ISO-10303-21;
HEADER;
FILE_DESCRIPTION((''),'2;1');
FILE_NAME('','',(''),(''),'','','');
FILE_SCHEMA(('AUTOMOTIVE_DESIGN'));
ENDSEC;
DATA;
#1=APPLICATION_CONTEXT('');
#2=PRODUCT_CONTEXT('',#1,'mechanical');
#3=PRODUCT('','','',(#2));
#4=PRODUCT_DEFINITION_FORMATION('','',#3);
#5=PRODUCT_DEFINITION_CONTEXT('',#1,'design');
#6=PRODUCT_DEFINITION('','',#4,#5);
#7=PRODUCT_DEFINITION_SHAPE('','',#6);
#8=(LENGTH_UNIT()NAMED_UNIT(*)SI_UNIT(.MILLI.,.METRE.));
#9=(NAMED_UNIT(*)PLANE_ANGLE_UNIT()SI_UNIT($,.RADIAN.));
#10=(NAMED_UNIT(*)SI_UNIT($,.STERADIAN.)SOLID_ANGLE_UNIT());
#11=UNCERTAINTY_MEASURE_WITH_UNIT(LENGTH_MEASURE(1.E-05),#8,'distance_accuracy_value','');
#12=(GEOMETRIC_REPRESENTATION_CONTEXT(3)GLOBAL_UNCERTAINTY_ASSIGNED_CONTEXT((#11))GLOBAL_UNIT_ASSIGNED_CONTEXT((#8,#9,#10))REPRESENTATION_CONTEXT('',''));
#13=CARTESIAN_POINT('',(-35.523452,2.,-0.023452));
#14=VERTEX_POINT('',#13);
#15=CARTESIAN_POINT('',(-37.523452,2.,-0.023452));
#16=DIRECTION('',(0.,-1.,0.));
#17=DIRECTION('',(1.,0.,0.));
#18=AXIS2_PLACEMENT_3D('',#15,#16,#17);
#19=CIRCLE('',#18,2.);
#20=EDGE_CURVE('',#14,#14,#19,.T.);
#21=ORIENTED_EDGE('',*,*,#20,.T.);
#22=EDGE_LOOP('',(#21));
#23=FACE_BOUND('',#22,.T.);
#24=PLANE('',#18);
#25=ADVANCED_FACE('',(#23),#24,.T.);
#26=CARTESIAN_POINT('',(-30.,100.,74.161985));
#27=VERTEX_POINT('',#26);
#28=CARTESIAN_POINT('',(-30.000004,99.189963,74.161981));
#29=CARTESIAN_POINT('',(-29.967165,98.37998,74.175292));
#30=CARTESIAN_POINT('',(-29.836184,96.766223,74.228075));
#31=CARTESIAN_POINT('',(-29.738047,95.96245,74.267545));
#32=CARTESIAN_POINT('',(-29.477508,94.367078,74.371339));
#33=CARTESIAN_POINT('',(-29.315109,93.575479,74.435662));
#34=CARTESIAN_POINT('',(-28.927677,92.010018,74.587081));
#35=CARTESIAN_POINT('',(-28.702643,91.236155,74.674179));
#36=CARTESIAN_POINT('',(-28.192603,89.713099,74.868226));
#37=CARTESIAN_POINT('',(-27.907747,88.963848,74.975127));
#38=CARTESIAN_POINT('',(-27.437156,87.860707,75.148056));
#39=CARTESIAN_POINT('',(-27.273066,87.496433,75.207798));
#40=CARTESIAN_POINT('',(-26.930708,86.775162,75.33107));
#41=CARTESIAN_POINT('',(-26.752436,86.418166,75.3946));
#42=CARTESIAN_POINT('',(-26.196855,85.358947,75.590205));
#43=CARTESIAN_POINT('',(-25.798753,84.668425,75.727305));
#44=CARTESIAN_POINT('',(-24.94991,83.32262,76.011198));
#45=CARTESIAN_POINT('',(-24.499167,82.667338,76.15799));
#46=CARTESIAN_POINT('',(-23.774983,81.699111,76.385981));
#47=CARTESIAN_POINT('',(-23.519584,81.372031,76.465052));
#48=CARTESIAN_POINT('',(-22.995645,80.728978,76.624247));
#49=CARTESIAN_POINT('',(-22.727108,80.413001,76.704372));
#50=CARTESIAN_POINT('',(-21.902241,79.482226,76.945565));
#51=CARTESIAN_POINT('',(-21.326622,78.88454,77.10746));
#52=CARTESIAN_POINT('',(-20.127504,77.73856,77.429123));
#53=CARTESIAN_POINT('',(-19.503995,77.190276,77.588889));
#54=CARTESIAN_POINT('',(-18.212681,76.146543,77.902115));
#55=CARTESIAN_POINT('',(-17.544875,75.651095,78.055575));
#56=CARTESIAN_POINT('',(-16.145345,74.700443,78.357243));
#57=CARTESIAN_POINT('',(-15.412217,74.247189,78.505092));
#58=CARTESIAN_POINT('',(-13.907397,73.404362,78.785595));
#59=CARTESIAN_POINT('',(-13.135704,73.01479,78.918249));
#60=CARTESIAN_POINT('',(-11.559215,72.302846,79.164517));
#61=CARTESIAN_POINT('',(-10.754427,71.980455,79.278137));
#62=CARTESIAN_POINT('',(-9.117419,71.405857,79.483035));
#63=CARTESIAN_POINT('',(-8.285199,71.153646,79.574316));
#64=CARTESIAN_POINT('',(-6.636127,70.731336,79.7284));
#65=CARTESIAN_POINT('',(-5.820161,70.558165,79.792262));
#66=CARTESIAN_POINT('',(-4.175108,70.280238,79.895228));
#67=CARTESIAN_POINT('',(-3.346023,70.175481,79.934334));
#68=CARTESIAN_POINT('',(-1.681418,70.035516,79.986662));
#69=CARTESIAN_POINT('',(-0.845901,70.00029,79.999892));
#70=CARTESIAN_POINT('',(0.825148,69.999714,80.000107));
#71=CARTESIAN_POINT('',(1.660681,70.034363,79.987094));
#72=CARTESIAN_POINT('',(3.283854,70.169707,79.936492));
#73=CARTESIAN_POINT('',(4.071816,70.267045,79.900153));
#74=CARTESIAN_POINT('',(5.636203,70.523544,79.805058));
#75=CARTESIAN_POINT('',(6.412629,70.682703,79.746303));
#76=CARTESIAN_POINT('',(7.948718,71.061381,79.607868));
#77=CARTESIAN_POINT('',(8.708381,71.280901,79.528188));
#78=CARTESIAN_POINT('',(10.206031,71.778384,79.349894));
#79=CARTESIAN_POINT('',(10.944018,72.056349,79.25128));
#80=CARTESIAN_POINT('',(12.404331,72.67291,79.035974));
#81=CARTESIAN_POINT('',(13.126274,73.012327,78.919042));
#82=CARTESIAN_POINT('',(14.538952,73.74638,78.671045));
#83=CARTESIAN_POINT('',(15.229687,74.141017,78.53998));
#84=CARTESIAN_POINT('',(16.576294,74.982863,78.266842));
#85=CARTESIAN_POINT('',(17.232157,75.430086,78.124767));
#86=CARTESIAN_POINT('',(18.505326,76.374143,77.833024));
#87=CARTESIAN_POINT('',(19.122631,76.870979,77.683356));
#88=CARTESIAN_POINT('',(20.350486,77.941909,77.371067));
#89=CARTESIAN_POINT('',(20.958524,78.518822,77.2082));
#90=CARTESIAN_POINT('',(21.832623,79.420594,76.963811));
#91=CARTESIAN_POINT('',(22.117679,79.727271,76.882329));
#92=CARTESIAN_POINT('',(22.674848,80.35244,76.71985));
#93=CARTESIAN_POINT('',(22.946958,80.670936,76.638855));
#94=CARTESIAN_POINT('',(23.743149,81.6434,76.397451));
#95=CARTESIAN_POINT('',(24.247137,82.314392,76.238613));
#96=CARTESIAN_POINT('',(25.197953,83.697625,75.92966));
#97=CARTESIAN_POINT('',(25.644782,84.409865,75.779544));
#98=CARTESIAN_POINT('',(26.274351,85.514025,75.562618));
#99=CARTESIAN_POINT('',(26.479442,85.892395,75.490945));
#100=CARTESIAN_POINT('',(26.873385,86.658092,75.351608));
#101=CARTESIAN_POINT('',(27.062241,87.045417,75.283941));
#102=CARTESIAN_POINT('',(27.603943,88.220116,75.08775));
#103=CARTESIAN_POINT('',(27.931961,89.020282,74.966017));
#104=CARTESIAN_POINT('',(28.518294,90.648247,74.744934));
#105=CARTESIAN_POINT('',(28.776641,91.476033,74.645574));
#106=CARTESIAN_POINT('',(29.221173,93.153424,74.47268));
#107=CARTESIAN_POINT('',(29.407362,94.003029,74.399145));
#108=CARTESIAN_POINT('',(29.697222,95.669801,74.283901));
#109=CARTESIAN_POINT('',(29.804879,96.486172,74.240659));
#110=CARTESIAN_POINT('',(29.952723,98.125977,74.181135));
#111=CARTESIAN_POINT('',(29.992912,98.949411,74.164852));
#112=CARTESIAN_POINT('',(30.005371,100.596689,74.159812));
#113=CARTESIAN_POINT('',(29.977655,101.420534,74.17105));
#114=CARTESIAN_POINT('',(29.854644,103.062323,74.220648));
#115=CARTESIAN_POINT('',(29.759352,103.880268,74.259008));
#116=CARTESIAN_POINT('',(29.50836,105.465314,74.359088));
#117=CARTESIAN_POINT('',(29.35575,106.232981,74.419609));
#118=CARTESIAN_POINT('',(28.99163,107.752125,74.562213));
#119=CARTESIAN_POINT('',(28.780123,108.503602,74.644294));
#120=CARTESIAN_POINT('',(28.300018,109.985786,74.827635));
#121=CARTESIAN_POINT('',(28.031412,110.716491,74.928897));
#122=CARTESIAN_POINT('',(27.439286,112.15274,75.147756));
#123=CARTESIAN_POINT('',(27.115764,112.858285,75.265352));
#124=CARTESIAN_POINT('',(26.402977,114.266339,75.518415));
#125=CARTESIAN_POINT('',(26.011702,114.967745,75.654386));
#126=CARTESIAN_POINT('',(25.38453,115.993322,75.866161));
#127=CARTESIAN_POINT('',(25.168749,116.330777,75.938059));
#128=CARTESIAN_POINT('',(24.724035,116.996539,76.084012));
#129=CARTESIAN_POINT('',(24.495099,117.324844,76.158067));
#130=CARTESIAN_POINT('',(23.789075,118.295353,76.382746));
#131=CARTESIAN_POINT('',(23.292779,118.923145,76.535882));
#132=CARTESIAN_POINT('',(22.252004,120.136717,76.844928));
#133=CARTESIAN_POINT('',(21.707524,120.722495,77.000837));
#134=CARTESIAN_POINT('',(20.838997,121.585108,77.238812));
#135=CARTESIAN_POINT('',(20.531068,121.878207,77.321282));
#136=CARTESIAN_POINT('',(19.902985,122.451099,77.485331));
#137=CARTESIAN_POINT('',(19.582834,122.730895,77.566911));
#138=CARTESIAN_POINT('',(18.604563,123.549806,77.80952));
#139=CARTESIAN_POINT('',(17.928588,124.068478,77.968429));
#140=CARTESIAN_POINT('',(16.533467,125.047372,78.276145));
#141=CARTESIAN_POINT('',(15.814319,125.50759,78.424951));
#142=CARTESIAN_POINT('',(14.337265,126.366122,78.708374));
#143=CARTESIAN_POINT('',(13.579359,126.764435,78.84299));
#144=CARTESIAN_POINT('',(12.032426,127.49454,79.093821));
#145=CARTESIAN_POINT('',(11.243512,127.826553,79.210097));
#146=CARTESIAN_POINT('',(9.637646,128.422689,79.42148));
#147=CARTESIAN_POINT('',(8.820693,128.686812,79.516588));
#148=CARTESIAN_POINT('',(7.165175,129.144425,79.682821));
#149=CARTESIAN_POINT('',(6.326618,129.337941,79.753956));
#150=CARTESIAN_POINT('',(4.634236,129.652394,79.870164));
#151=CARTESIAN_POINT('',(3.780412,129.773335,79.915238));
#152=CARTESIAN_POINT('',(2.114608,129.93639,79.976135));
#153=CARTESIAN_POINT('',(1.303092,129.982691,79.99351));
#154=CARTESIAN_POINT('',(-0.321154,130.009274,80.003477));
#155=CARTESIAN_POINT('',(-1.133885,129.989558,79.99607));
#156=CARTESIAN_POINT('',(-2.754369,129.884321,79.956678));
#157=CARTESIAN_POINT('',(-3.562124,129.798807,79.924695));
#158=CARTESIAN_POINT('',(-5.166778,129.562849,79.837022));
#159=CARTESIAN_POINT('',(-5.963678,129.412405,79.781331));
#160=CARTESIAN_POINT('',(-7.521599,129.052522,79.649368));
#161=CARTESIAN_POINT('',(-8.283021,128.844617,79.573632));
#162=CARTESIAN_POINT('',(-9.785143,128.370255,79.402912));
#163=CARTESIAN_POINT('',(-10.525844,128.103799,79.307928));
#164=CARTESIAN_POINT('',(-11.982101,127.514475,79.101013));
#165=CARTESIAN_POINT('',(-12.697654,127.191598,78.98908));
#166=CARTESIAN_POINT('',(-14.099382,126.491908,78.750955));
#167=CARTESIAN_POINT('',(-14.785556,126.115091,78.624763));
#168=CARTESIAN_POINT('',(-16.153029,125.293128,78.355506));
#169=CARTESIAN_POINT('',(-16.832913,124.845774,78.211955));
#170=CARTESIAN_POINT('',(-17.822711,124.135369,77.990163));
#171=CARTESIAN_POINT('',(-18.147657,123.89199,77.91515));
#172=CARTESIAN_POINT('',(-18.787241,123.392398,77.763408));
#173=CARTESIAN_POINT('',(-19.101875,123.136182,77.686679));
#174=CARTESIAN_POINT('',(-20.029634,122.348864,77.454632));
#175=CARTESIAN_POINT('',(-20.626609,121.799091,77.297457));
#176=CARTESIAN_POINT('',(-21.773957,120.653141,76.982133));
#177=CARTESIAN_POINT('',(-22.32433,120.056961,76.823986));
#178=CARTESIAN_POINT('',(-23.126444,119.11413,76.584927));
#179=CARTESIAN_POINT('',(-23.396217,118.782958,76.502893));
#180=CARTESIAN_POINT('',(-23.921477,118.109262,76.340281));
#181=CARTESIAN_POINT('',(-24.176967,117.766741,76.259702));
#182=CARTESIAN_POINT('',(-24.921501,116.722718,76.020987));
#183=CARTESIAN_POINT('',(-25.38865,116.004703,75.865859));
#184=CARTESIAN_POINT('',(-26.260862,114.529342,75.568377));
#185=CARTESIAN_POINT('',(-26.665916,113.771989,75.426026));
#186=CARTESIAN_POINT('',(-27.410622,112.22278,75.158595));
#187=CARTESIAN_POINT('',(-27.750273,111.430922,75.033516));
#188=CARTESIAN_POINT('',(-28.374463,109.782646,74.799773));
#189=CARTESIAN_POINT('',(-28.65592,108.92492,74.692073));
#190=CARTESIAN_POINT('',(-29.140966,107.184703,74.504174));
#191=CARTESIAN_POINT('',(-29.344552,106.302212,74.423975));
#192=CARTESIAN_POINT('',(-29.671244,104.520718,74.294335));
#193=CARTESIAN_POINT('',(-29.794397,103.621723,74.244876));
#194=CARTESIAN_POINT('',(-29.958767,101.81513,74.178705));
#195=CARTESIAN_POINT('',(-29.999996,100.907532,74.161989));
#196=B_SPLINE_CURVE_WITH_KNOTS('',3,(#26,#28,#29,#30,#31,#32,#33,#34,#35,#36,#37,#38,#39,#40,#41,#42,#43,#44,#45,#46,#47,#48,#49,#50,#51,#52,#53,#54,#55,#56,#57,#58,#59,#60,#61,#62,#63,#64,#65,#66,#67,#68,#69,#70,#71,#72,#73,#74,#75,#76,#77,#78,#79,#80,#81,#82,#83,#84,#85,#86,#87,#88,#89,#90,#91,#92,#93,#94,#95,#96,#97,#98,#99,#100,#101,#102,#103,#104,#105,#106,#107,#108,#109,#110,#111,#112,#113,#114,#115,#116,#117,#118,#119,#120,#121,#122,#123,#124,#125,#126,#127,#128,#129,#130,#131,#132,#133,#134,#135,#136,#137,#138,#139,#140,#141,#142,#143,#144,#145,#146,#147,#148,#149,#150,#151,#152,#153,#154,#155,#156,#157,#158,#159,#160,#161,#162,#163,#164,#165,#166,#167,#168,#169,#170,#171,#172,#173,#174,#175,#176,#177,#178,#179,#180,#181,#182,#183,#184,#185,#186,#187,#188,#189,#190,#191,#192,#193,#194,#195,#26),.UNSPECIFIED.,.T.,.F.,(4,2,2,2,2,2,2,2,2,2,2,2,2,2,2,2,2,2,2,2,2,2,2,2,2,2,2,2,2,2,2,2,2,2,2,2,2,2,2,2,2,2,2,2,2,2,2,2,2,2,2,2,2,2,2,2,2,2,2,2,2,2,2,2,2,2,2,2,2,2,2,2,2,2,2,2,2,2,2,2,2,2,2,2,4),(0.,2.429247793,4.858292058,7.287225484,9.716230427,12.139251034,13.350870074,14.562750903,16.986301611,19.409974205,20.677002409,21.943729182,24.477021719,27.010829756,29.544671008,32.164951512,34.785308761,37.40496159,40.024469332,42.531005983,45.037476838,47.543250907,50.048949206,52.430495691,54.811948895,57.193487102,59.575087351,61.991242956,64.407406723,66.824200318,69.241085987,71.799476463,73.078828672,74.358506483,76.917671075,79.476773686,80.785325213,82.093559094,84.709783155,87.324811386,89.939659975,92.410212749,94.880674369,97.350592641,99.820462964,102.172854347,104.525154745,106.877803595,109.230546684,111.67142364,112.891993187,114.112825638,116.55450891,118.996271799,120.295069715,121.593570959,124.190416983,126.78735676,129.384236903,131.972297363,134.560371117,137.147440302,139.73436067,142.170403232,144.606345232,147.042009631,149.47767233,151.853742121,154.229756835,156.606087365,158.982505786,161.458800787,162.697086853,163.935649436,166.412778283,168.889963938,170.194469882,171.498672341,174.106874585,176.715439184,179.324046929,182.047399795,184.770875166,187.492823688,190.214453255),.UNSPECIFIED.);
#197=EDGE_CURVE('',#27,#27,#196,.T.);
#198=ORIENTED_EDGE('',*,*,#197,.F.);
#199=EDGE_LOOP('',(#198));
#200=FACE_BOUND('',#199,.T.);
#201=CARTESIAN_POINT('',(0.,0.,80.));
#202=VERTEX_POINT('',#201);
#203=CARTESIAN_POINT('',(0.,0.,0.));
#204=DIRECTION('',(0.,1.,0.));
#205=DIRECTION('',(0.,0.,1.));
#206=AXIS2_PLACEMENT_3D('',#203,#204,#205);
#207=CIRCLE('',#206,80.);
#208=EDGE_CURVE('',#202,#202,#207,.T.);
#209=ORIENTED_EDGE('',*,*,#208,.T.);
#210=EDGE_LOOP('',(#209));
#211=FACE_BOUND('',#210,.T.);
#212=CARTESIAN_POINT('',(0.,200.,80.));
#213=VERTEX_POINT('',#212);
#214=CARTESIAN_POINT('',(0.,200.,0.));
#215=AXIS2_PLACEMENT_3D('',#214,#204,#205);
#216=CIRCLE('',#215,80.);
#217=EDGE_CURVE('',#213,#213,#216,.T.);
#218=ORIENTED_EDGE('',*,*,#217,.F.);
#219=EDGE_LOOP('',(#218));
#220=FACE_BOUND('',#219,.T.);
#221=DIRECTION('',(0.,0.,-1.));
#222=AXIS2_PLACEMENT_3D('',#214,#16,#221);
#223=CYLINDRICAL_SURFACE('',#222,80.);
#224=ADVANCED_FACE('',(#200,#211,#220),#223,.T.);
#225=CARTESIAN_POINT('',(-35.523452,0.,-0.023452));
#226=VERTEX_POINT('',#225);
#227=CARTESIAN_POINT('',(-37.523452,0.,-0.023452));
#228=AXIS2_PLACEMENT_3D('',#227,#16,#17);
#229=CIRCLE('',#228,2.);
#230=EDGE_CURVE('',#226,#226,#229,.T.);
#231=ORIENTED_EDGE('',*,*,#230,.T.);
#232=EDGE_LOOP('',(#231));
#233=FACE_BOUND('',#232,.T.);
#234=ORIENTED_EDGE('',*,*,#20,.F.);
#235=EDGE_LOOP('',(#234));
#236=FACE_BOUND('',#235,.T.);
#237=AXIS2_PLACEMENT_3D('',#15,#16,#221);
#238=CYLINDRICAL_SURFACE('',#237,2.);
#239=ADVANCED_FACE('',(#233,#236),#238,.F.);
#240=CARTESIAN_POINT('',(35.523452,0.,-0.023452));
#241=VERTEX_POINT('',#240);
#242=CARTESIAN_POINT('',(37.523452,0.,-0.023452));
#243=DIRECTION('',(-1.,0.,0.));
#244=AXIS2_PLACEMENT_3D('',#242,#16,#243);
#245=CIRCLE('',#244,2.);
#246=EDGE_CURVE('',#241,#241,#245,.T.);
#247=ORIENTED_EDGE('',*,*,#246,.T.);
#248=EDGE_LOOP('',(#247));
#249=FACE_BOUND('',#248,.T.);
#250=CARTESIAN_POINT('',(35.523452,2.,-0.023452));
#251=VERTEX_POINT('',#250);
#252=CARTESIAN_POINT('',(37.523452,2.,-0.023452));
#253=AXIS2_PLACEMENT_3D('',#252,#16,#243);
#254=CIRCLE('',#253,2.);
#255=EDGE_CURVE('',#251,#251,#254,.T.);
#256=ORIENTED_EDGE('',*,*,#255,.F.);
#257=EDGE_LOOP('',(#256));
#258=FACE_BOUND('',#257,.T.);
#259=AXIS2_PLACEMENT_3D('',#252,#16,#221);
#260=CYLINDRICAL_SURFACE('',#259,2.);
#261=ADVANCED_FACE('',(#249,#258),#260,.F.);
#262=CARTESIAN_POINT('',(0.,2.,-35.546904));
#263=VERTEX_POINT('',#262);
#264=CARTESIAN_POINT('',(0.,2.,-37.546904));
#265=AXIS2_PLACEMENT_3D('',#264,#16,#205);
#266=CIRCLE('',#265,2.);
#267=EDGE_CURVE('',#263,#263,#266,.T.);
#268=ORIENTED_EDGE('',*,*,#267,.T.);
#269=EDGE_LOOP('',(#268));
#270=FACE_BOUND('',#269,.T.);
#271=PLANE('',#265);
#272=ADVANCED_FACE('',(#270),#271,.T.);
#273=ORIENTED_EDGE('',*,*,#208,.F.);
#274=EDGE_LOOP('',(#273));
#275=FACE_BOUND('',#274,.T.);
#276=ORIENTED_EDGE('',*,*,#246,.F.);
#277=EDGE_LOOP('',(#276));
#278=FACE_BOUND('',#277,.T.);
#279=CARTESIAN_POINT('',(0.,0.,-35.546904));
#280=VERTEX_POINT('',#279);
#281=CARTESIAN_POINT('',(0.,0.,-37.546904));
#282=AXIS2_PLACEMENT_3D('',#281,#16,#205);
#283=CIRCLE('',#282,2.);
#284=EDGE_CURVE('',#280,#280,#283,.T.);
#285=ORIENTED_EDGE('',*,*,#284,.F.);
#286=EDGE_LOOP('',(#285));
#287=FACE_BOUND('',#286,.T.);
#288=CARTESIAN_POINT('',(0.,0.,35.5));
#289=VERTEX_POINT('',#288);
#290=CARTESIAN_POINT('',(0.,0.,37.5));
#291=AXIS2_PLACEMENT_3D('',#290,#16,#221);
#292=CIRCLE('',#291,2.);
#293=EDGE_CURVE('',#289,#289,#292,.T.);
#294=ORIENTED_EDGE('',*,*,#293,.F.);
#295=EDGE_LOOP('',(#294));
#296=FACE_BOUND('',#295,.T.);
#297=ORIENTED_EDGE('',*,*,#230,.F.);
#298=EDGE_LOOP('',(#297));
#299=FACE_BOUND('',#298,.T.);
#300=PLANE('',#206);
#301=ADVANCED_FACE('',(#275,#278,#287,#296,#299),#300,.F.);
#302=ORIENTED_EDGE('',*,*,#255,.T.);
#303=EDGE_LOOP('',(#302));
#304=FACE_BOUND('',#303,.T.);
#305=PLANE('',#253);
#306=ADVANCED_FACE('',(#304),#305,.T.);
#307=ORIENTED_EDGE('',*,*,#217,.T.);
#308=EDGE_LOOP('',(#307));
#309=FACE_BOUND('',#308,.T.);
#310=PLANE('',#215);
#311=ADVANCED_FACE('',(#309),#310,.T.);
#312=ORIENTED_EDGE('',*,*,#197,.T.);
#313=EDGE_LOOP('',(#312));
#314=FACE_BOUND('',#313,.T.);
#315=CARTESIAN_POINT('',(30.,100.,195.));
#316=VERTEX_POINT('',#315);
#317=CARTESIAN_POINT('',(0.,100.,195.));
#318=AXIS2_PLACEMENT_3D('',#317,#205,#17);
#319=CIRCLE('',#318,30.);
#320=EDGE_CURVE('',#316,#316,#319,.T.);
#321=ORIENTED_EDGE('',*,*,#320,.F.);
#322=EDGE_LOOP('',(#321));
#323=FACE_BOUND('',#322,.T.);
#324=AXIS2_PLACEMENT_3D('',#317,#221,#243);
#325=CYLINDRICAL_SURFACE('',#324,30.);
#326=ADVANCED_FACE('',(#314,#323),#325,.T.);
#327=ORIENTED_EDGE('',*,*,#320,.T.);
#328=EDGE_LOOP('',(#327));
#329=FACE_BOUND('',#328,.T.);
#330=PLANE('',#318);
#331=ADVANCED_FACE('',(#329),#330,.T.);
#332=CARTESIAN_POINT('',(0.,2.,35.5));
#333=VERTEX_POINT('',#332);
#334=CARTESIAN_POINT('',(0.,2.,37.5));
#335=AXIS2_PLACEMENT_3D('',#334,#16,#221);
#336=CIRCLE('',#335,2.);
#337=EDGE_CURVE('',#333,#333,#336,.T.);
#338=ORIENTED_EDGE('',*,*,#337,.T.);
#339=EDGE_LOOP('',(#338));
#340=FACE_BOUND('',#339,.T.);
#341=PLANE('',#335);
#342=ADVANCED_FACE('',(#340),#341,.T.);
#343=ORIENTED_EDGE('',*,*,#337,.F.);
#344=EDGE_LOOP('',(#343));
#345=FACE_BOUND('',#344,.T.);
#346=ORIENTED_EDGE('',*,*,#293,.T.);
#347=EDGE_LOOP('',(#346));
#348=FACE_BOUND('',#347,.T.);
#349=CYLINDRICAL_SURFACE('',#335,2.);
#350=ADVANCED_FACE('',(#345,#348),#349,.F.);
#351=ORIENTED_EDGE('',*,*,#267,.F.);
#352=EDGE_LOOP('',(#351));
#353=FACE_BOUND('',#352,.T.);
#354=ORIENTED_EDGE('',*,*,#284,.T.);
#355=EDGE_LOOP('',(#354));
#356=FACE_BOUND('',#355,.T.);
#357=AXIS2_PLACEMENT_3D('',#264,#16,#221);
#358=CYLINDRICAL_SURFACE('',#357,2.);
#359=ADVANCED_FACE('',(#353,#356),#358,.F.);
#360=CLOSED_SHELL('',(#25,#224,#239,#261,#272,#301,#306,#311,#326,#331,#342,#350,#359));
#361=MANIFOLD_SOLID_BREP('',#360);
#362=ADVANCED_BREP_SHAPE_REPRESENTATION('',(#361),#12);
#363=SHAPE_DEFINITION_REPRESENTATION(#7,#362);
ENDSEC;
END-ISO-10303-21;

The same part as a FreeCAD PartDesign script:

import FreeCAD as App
import Part
import Sketcher

doc = App.newDocument("Part")
params = doc.addObject("Spreadsheet::Sheet", "Params")
for row, (alias, value) in enumerate([
    ("sketch1_diameter", "160 mm"),
    ("pad1_length", "200 mm"),
    ("sketch2_diameter", "60 mm"),
    ("pad2_length", "195 mm"),
    ("sketch3_diameter", "4 mm"),
    ("pocket1_length", "2 mm"),
], start=1):
    params.set(f"A{row}", alias)
    params.set(f"B{row}", "=" + value)
    params.setAlias(f"B{row}", alias)

body = doc.addObject("PartDesign::Body", "Body")

# Sketch on XZ plane
sketch1 = body.newObject("Sketcher::SketchObject", "Sketch")
sketch1.AttachmentSupport = (doc.getObject("XZ_Plane"), [""])
sketch1.MapMode = "FlatFace"
sketch1.addGeometry(Part.Circle(App.Vector(0, 0, 0), App.Vector(0, 0, 1), 80), False)
sketch1.addConstraint([
    Sketcher.Constraint("Coincident", 0, 3, -1, 1),
    Sketcher.Constraint("Diameter", 0, 160.0),
])
sketch1.setExpression("Constraints[1]", "Params.sketch1_diameter")
pad1 = body.newObject("PartDesign::Pad", "Pad")
pad1.Profile = sketch1
pad1.setExpression("Length", "Params.pad1_length")
pad1.Reversed = True

# Sketch on XY plane
sketch2 = body.newObject("Sketcher::SketchObject", "Sketch001")
sketch2.AttachmentSupport = (doc.getObject("XY_Plane"), [""])
sketch2.MapMode = "FlatFace"
sketch2.addGeometry(Part.Circle(App.Vector(0, 100, 0), App.Vector(0, 0, 1), 30), False)
sketch2.addConstraint([
    Sketcher.Constraint("PointOnObject", 0, 3, -2),
    Sketcher.Constraint("Diameter", 0, 60.0),
    Sketcher.Constraint("DistanceY", -1, 1, 0, 3, 100.0),
])
sketch2.setExpression("Constraints[1]", "Params.sketch2_diameter")
pad2 = body.newObject("PartDesign::Pad", "Pad001")
pad2.Profile = sketch2
pad2.setExpression("Length", "Params.pad2_length")

# Sketch on XZ plane
sketch3 = body.newObject("Sketcher::SketchObject", "Sketch002")
sketch3.AttachmentSupport = (doc.getObject("XZ_Plane"), [""])
sketch3.MapMode = "FlatFace"
sketch3.addGeometry(Part.Circle(App.Vector(0, 37.5, 0), App.Vector(0, 0, 1), 2), False)
sketch3.addConstraint([
    Sketcher.Constraint("PointOnObject", 0, 3, -2),
    Sketcher.Constraint("Diameter", 0, 4.0),
    Sketcher.Constraint("DistanceY", -1, 1, 0, 3, 37.5),
])
sketch3.setExpression("Constraints[1]", "Params.sketch3_diameter")
pocket1 = body.newObject("PartDesign::Pocket", "Pocket")
pocket1.Profile = sketch3
pocket1.setExpression("Length", "Params.pocket1_length")
doc.recompute()

datumline = body.newObject("PartDesign::Line", "DatumLine")
datumline.Placement = App.Placement(App.Vector(0, 0, -0.023452), App.Rotation(App.Vector(0, 0, 1), App.Vector(0, 1, 0)))
polarpattern = body.newObject("PartDesign::PolarPattern", "PolarPattern")
polarpattern.Originals = [pocket1]
polarpattern.Axis = (datumline, [""])
polarpattern.Angle = 360
polarpattern.Occurrences = 4
body.Tip = polarpattern

doc.recompute()
